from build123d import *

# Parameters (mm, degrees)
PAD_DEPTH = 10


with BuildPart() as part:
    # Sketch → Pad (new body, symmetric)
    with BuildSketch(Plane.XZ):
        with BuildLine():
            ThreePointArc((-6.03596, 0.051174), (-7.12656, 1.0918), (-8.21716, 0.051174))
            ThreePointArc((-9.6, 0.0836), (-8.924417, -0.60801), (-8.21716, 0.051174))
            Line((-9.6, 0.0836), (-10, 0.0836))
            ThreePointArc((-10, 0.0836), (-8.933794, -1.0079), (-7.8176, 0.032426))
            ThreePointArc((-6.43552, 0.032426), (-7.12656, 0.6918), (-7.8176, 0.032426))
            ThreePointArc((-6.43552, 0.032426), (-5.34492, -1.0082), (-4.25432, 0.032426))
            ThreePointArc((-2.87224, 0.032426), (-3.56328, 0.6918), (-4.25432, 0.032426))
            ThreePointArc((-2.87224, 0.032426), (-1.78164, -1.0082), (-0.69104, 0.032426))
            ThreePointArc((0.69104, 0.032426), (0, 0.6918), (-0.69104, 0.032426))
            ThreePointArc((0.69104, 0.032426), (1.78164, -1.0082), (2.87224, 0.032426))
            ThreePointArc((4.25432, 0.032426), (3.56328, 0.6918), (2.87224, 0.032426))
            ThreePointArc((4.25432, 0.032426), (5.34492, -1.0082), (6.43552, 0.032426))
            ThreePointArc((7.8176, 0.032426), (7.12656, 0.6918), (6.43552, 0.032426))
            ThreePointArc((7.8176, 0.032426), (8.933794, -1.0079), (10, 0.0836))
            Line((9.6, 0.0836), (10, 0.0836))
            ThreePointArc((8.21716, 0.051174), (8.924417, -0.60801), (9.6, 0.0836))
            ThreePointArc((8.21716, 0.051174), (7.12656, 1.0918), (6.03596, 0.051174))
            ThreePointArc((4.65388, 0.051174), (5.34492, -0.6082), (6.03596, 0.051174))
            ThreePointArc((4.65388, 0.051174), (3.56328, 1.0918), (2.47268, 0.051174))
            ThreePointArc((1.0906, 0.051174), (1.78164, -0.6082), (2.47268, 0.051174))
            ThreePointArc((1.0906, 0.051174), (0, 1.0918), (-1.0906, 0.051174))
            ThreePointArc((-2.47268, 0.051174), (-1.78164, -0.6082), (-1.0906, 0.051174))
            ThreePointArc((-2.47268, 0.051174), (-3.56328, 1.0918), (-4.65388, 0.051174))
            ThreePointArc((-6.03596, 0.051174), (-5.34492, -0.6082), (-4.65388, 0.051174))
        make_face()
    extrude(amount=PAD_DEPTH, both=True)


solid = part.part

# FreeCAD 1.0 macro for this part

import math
import FreeCAD as App
import Part
import Sketcher
Q = App.Units.Quantity

doc = App.newDocument("Part")
body = doc.addObject("PartDesign::Body", "Body")

# Sketch on XZ plane
sketch1 = body.newObject("Sketcher::SketchObject", "Sketch")
sketch1.AttachmentSupport = (doc.getObject("XZ_Plane"), [""])
sketch1.MapMode = "FlatFace"
sketch1.addGeometry(Part.ArcOfCircle(Part.Circle(App.Vector(-7.13, 0, 0), App.Vector(0, 0, 1), 1.09), math.radians(3), math.radians(177)), False)
sketch1.addGeometry(Part.ArcOfCircle(Part.Circle(App.Vector(-8.91, 0.08, 0), App.Vector(0, 0, 1), 0.69), math.radians(-180), math.radians(-3)), False)
sketch1.addGeometry(Part.LineSegment(App.Vector(-9.6, 0.08, 0), App.Vector(-10, 0.08, 0)), False)
sketch1.addGeometry(Part.ArcOfCircle(Part.Circle(App.Vector(-8.91, 0.08, 0), App.Vector(0, 0, 1), 1.09), math.radians(180), math.radians(357)), False)
sketch1.addGeometry(Part.ArcOfCircle(Part.Circle(App.Vector(-7.13, 0, 0), App.Vector(0, 0, 1), 0.69), math.radians(3), math.radians(177)), False)
sketch1.addGeometry(Part.ArcOfCircle(Part.Circle(App.Vector(-5.34, 0.08, 0), App.Vector(0, 0, 1), 1.09), math.radians(-177), math.radians(-3)), False)
sketch1.addGeometry(Part.ArcOfCircle(Part.Circle(App.Vector(-3.56, 0, 0), App.Vector(0, 0, 1), 0.69), math.radians(3), math.radians(177)), False)
sketch1.addGeometry(Part.ArcOfCircle(Part.Circle(App.Vector(-1.78, 0.08, 0), App.Vector(0, 0, 1), 1.09), math.radians(-177), math.radians(-3)), False)
sketch1.addGeometry(Part.ArcOfCircle(Part.Circle(App.Vector(0, 0, 0), App.Vector(0, 0, 1), 0.69), math.radians(3), math.radians(177)), False)
sketch1.addGeometry(Part.ArcOfCircle(Part.Circle(App.Vector(1.78, 0.08, 0), App.Vector(0, 0, 1), 1.09), math.radians(-177), math.radians(-3)), False)
sketch1.addGeometry(Part.ArcOfCircle(Part.Circle(App.Vector(3.56, 0, 0), App.Vector(0, 0, 1), 0.69), math.radians(3), math.radians(177)), False)
sketch1.addGeometry(Part.ArcOfCircle(Part.Circle(App.Vector(5.34, 0.08, 0), App.Vector(0, 0, 1), 1.09), math.radians(-177), math.radians(-3)), False)
sketch1.addGeometry(Part.ArcOfCircle(Part.Circle(App.Vector(7.13, 0, 0), App.Vector(0, 0, 1), 0.69), math.radians(3), math.radians(177)), False)
sketch1.addGeometry(Part.ArcOfCircle(Part.Circle(App.Vector(8.91, 0.08, 0), App.Vector(0, 0, 1), 1.09), math.radians(-177), math.radians(0)), False)
sketch1.addGeometry(Part.LineSegment(App.Vector(10, 0.08, 0), App.Vector(9.6, 0.08, 0)), False)
sketch1.addGeometry(Part.ArcOfCircle(Part.Circle(App.Vector(8.91, 0.08, 0), App.Vector(0, 0, 1), 0.69), math.radians(-177), math.radians(0)), False)
sketch1.addGeometry(Part.ArcOfCircle(Part.Circle(App.Vector(7.13, 0, 0), App.Vector(0, 0, 1), 1.09), math.radians(3), math.radians(177)), False)
sketch1.addGeometry(Part.ArcOfCircle(Part.Circle(App.Vector(5.34, 0.08, 0), App.Vector(0, 0, 1), 0.69), math.radians(-177), math.radians(-3)), False)
sketch1.addGeometry(Part.ArcOfCircle(Part.Circle(App.Vector(3.56, 0, 0), App.Vector(0, 0, 1), 1.09), math.radians(3), math.radians(177)), False)
sketch1.addGeometry(Part.ArcOfCircle(Part.Circle(App.Vector(1.78, 0.08, 0), App.Vector(0, 0, 1), 0.69), math.radians(-177), math.radians(-3)), False)
sketch1.addGeometry(Part.ArcOfCircle(Part.Circle(App.Vector(0, 0, 0), App.Vector(0, 0, 1), 1.09), math.radians(3), math.radians(177)), False)
sketch1.addGeometry(Part.ArcOfCircle(Part.Circle(App.Vector(-1.78, 0.08, 0), App.Vector(0, 0, 1), 0.69), math.radians(-177), math.radians(-3)), False)
sketch1.addGeometry(Part.ArcOfCircle(Part.Circle(App.Vector(-3.56, 0, 0), App.Vector(0, 0, 1), 1.09), math.radians(3), math.radians(177)), False)
sketch1.addGeometry(Part.ArcOfCircle(Part.Circle(App.Vector(-5.34, 0.08, 0), App.Vector(0, 0, 1), 0.69), math.radians(-177), math.radians(-3)), False)
sketch1.addConstraint(Sketcher.Constraint("Tangent", 0, 2, 1, 2))
sketch1.addConstraint(Sketcher.Constraint("Coincident", 1, 1, 2, 1))
sketch1.addConstraint(Sketcher.Constraint("Coincident", 2, 2, 3, 1))
sketch1.addConstraint(Sketcher.Constraint("Tangent", 3, 2, 4, 2))
sketch1.addConstraint(Sketcher.Constraint("Tangent", 4, 1, 5, 1))
sketch1.addConstraint(Sketcher.Constraint("Tangent", 5, 2, 6, 2))
sketch1.addConstraint(Sketcher.Constraint("Tangent", 6, 1, 7, 1))
sketch1.addConstraint(Sketcher.Constraint("Tangent", 7, 2, 8, 2))
sketch1.addConstraint(Sketcher.Constraint("Tangent", 8, 1, 9, 1))
sketch1.addConstraint(Sketcher.Constraint("Tangent", 9, 2, 10, 2))
sketch1.addConstraint(Sketcher.Constraint("Tangent", 10, 1, 11, 1))
sketch1.addConstraint(Sketcher.Constraint("Tangent", 11, 2, 12, 2))
sketch1.addConstraint(Sketcher.Constraint("Tangent", 12, 1, 13, 1))
sketch1.addConstraint(Sketcher.Constraint("Coincident", 13, 2, 14, 1))
sketch1.addConstraint(Sketcher.Constraint("Coincident", 14, 2, 15, 2))
sketch1.addConstraint(Sketcher.Constraint("Tangent", 15, 1, 16, 1))
sketch1.addConstraint(Sketcher.Constraint("Tangent", 16, 2, 17, 2))
sketch1.addConstraint(Sketcher.Constraint("Tangent", 17, 1, 18, 1))
sketch1.addConstraint(Sketcher.Constraint("Tangent", 18, 2, 19, 2))
sketch1.addConstraint(Sketcher.Constraint("Tangent", 19, 1, 20, 1))
sketch1.addConstraint(Sketcher.Constraint("Tangent", 20, 2, 21, 2))
sketch1.addConstraint(Sketcher.Constraint("Tangent", 21, 1, 22, 1))
sketch1.addConstraint(Sketcher.Constraint("Tangent", 22, 2, 23, 2))
sketch1.addConstraint(Sketcher.Constraint("Tangent", 23, 1, 0, 1))
sketch1.addConstraint(Sketcher.Constraint("Horizontal", 2))
sketch1.addConstraint(Sketcher.Constraint("Horizontal", 14))
sketch1.addConstraint(Sketcher.Constraint("Coincident", 8, 3, -1, 1))
sketch1.addConstraint(Sketcher.Constraint("Coincident", 20, 3, -1, 1))
sketch1.addConstraint(Sketcher.Constraint("Coincident", 3, 3, 1, 3))
sketch1.addConstraint(Sketcher.Constraint("Coincident", 4, 3, 0, 3))
sketch1.addConstraint(Sketcher.Constraint("Coincident", 15, 3, 13, 3))
sketch1.addConstraint(Sketcher.Constraint("Coincident", 16, 3, 12, 3))
sketch1.addConstraint(Sketcher.Constraint("Coincident", 17, 3, 11, 3))
sketch1.addConstraint(Sketcher.Constraint("Coincident", 18, 3, 10, 3))
sketch1.addConstraint(Sketcher.Constraint("Coincident", 19, 3, 9, 3))
sketch1.addConstraint(Sketcher.Constraint("Coincident", 21, 3, 7, 3))
sketch1.addConstraint(Sketcher.Constraint("Coincident", 22, 3, 6, 3))
sketch1.addConstraint(Sketcher.Constraint("Coincident", 23, 3, 5, 3))
sketch1.addConstraint(Sketcher.Constraint("Equal", 0, 3))
sketch1.addConstraint(Sketcher.Constraint("Equal", 3, 5))
sketch1.addConstraint(Sketcher.Constraint("Equal", 4, 6))
sketch1.addConstraint(Sketcher.Constraint("Equal", 5, 7))
sketch1.addConstraint(Sketcher.Constraint("Equal", 6, 8))
sketch1.addConstraint(Sketcher.Constraint("Equal", 7, 9))
sketch1.addConstraint(Sketcher.Constraint("Equal", 8, 10))
sketch1.addConstraint(Sketcher.Constraint("Equal", 9, 11))
sketch1.addConstraint(Sketcher.Constraint("Equal", 10, 12))
sketch1.addConstraint(Sketcher.Constraint("Equal", 11, 13))
sketch1.addConstraint(Sketcher.Constraint("Symmetric", 6, 3, 10, 3, -1, 1))
sketch1.addConstraint(Sketcher.Constraint("Symmetric", 0, 3, 12, 3, -1, 1))
sketch1.addConstraint(Sketcher.Constraint("Symmetric", 5, 3, 11, 3, -2))
sketch1.addConstraint(Sketcher.Constraint("Symmetric", 2, 2, 13, 2, -2))
sketch1.addConstraint(Sketcher.Constraint("Horizontal", 3, 3, 5, 3))
sketch1.addConstraint(Sketcher.Constraint("Horizontal", 5, 3, 7, 3))
sketch1.addConstraint(Sketcher.Constraint("Horizontal", 23, 3, 1, 1))
sketch1.addConstraint(Sketcher.Constraint("DistanceX", 2, 2, 2, 1, Q("0.4 mm")))
sketch1.addConstraint(Sketcher.Constraint("DistanceX", 2, 2, -1, 1, Q("10 mm")))
sketch1.addConstraint(Sketcher.Constraint("Radius", 0, Q("1.0918 mm")))
pad1 = body.newObject("PartDesign::Pad", "Pad")
pad1.Profile = sketch1
pad1.Length = 20
pad1.Midplane = True

doc.recompute()
